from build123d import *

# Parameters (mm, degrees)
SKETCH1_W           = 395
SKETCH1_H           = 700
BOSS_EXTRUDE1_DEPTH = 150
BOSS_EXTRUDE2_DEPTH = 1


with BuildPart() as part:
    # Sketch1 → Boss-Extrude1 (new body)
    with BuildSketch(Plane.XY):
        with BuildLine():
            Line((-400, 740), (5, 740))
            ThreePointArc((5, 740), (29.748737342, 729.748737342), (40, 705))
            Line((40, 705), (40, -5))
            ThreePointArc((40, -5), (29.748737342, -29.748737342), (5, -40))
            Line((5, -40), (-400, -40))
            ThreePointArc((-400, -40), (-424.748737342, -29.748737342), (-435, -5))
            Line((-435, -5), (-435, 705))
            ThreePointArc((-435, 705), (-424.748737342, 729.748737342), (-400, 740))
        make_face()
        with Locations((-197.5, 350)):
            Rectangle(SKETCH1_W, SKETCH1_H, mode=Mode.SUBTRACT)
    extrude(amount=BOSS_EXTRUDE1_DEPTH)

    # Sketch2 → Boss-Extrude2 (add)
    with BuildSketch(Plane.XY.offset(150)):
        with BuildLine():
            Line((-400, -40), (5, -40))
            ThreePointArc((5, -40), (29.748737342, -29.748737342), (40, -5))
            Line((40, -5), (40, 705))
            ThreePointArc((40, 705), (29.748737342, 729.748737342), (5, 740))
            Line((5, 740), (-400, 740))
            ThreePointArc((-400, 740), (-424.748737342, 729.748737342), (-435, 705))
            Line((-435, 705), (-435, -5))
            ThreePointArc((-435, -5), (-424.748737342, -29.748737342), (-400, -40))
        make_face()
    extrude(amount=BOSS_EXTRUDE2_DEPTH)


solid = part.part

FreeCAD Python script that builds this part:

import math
import FreeCAD as App
import Part
import Sketcher

V = App.Vector


def add_polygon(sketch, points):
    """Adds a closed chain of lines whose ends are joined by coincident constraints."""
    first, n = sketch.GeometryCount, len(points)
    for a, b in zip(points, points[1:] + points[:1]):
        sketch.addGeometry(Part.LineSegment(App.Vector(*a, 0), App.Vector(*b, 0)), False)
    for i in range(n):
        sketch.addConstraint(Sketcher.Constraint("Coincident", first + i, 2, first + (i + 1) % n, 1))

doc = App.newDocument("Part")
body = doc.addObject("PartDesign::Body", "Body")

# Sketch on XY plane
sketch1 = body.newObject("Sketcher::SketchObject", "Sketch")
sketch1.AttachmentSupport = (doc.getObject("XY_Plane"), [""])
sketch1.MapMode = "FlatFace"
sketch1.addGeometry(Part.LineSegment(V(5, 740, 0), V(-400, 740, 0)), False)  # 0
sketch1.addGeometry(Part.ArcOfCircle(Part.Circle(V(-400, 705, 0), V(0, 0, 1), 35), math.radians(90), math.radians(180)), False)  # 1
sketch1.addGeometry(Part.LineSegment(V(-435, 705, 0), V(-435, -5, 0)), False)  # 2
sketch1.addGeometry(Part.ArcOfCircle(Part.Circle(V(-400, -5, 0), V(0, 0, 1), 35), math.radians(180), math.radians(270)), False)  # 3
sketch1.addGeometry(Part.LineSegment(V(-400, -40, 0), V(5, -40, 0)), False)  # 4
sketch1.addGeometry(Part.ArcOfCircle(Part.Circle(V(5, -5, 0), V(0, 0, 1), 35), math.radians(-90), math.radians(0)), False)  # 5
sketch1.addGeometry(Part.LineSegment(V(40, -5, 0), V(40, 705, 0)), False)  # 6
sketch1.addGeometry(Part.ArcOfCircle(Part.Circle(V(5, 705, 0), V(0, 0, 1), 35), math.radians(0), math.radians(90)), False)  # 7
add_polygon(sketch1, [(-395, 0), (-395, 700), (0, 700), (0, 0)])  # lines 8-11
sketch1.addConstraint(Sketcher.Constraint("Tangent", 0, 2, 1, 1))
sketch1.addConstraint(Sketcher.Constraint("Tangent", 1, 2, 2, 1))
sketch1.addConstraint(Sketcher.Constraint("Tangent", 2, 2, 3, 1))
sketch1.addConstraint(Sketcher.Constraint("Tangent", 3, 2, 4, 1))
sketch1.addConstraint(Sketcher.Constraint("Tangent", 4, 2, 5, 1))
sketch1.addConstraint(Sketcher.Constraint("Tangent", 5, 2, 6, 1))
sketch1.addConstraint(Sketcher.Constraint("Tangent", 6, 2, 7, 1))
sketch1.addConstraint(Sketcher.Constraint("Tangent", 7, 2, 0, 1))
sketch1.addConstraint(Sketcher.Constraint("Horizontal", 0))
sketch1.addConstraint(Sketcher.Constraint("Vertical", 2))
sketch1.addConstraint(Sketcher.Constraint("Horizontal", 4))
sketch1.addConstraint(Sketcher.Constraint("Vertical", 6))
sketch1.addConstraint(Sketcher.Constraint("Vertical", 8))
sketch1.addConstraint(Sketcher.Constraint("Horizontal", 9))
sketch1.addConstraint(Sketcher.Constraint("Vertical", 10))
sketch1.addConstraint(Sketcher.Constraint("Horizontal", 11))
sketch1.addConstraint(Sketcher.Constraint("Coincident", 10, 2, -1, 1))
sketch1.addConstraint(Sketcher.Constraint("Equal", 1, 3))
sketch1.addConstraint(Sketcher.Constraint("Equal", 3, 5))
sketch1.addConstraint(Sketcher.Constraint("Equal", 5, 7))
sketch1.addConstraint(Sketcher.Constraint("Radius", 1, 35.0))
sketch1.addConstraint(Sketcher.Constraint("DistanceX", 0, 2, 0, 1, 405.0))
sketch1.addConstraint(Sketcher.Constraint("DistanceX", 9, 1, 9, 2, 395.0))
sketch1.addConstraint(Sketcher.Constraint("DistanceY", 2, 2, 2, 1, 710.0))
sketch1.addConstraint(Sketcher.Constraint("DistanceY", 8, 1, 8, 2, 700.0))
sketch1.addConstraint(Sketcher.Constraint("DistanceX", 1, 3, -1, 1, 400.0))
sketch1.addConstraint(Sketcher.Constraint("DistanceY", -1, 1, 1, 3, 705.0))
pad1 = body.newObject("PartDesign::Pad", "Pad")
pad1.Profile = sketch1
pad1.Length = 150

# Sketch on XY plane
sketch2 = body.newObject("Sketcher::SketchObject", "Sketch001")
sketch2.AttachmentSupport = (doc.getObject("XY_Plane"), [""])
sketch2.MapMode = "FlatFace"
sketch2.AttachmentOffset = App.Placement(V(0, 0, 150), App.Rotation())
sketch2.addGeometry(Part.LineSegment(V(-400, -40, 0), V(5, -40, 0)), False)
sketch2.addGeometry(Part.ArcOfCircle(Part.Circle(V(5, -5, 0), V(0, 0, 1), 35), math.radians(-90), math.radians(0)), False)
sketch2.addGeometry(Part.LineSegment(V(40, -5, 0), V(40, 705, 0)), False)
sketch2.addGeometry(Part.ArcOfCircle(Part.Circle(V(5, 705, 0), V(0, 0, 1), 35), math.radians(0), math.radians(90)), False)
sketch2.addGeometry(Part.LineSegment(V(5, 740, 0), V(-400, 740, 0)), False)
sketch2.addGeometry(Part.ArcOfCircle(Part.Circle(V(-400, 705, 0), V(0, 0, 1), 35), math.radians(90), math.radians(180)), False)
sketch2.addGeometry(Part.LineSegment(V(-435, 705, 0), V(-435, -5, 0)), False)
sketch2.addGeometry(Part.ArcOfCircle(Part.Circle(V(-400, -5, 0), V(0, 0, 1), 35), math.radians(180), math.radians(270)), False)
sketch2.addConstraint(Sketcher.Constraint("Tangent", 0, 2, 1, 1))
sketch2.addConstraint(Sketcher.Constraint("Tangent", 1, 2, 2, 1))
sketch2.addConstraint(Sketcher.Constraint("Tangent", 2, 2, 3, 1))
sketch2.addConstraint(Sketcher.Constraint("Tangent", 3, 2, 4, 1))
sketch2.addConstraint(Sketcher.Constraint("Tangent", 4, 2, 5, 1))
sketch2.addConstraint(Sketcher.Constraint("Tangent", 5, 2, 6, 1))
sketch2.addConstraint(Sketcher.Constraint("Tangent", 6, 2, 7, 1))
sketch2.addConstraint(Sketcher.Constraint("Tangent", 7, 2, 0, 1))
sketch2.addConstraint(Sketcher.Constraint("Horizontal", 0))
sketch2.addConstraint(Sketcher.Constraint("Vertical", 2))
sketch2.addConstraint(Sketcher.Constraint("Horizontal", 4))
sketch2.addConstraint(Sketcher.Constraint("Vertical", 6))
sketch2.addConstraint(Sketcher.Constraint("Equal", 1, 3))
sketch2.addConstraint(Sketcher.Constraint("Equal", 3, 5))
sketch2.addConstraint(Sketcher.Constraint("Equal", 5, 7))
sketch2.addConstraint(Sketcher.Constraint("Radius", 1, 35.0))
sketch2.addConstraint(Sketcher.Constraint("DistanceX", 0, 1, 0, 2, 405.0))
sketch2.addConstraint(Sketcher.Constraint("DistanceY", 2, 1, 2, 2, 710.0))
sketch2.addConstraint(Sketcher.Constraint("DistanceX", -1, 1, 1, 3, 5.0))
sketch2.addConstraint(Sketcher.Constraint("DistanceY", 1, 3, -1, 1, 5.0))
pad2 = body.newObject("PartDesign::Pad", "Pad001")
pad2.Profile = sketch2
pad2.Length = 1

doc.recompute()
